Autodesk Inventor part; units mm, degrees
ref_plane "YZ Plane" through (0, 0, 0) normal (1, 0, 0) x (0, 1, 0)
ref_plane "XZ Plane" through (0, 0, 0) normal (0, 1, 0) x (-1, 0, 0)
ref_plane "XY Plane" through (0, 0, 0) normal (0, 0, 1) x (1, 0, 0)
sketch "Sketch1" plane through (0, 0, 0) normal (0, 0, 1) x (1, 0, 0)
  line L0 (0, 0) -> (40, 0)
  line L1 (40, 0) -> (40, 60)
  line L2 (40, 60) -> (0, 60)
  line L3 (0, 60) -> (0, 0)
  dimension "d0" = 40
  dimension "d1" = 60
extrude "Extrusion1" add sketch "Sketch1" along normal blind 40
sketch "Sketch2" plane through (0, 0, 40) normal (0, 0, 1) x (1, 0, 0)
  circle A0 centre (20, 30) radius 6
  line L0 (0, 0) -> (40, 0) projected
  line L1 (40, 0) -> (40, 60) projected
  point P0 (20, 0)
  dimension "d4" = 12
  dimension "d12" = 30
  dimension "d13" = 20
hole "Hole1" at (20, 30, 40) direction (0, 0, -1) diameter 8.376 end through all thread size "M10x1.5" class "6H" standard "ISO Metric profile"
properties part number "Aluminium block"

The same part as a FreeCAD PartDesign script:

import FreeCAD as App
import Part
import Sketcher
Q = App.Units.Quantity


def add_polygon(sketch, points):
    """Adds a closed chain of lines whose ends are joined by coincident constraints."""
    first, n = sketch.GeometryCount, len(points)
    for a, b in zip(points, points[1:] + points[:1]):
        sketch.addGeometry(Part.LineSegment(App.Vector(*a, 0), App.Vector(*b, 0)), False)
    for i in range(n):
        sketch.addConstraint(Sketcher.Constraint("Coincident", first + i, 2, first + (i + 1) % n, 1))

doc = App.newDocument("Part")
body = doc.addObject("PartDesign::Body", "Body")

sketch1 = body.newObject("Sketcher::SketchObject", "Sketch")
sketch1.AttachmentSupport = (doc.getObject("XY_Plane"), [""])
sketch1.MapMode = "FlatFace"
add_polygon(sketch1, [(0, 60), (0, 0), (40, 0), (40, 60)])
sketch1.addConstraint(Sketcher.Constraint("Vertical", 0))
sketch1.addConstraint(Sketcher.Constraint("Horizontal", 1))
sketch1.addConstraint(Sketcher.Constraint("Vertical", 2))
sketch1.addConstraint(Sketcher.Constraint("Horizontal", 3))
sketch1.addConstraint(Sketcher.Constraint("Coincident", 0, 2, -1, 1))
sketch1.addConstraint(Sketcher.Constraint("DistanceX", 1, 1, 1, 2, Q("40 mm")))
sketch1.addConstraint(Sketcher.Constraint("DistanceY", 0, 2, 0, 1, Q("60 mm")))
pad1 = body.newObject("PartDesign::Pad", "Pad")
pad1.Profile = sketch1
pad1.Length = 40

sketch2 = body.newObject("Sketcher::SketchObject", "Sketch001")
sketch2.AttachmentSupport = (doc.getObject("XY_Plane"), [""])
sketch2.MapMode = "FlatFace"
sketch2.AttachmentOffset = App.Placement(App.Vector(0, 0, 40), App.Rotation())
sketch2.addGeometry(Part.Circle(App.Vector(20, 30, 0), App.Vector(0, 0, 1), 4.2), False)
sketch2.addConstraint(Sketcher.Constraint("Diameter", 0, Q("8.376 mm")))
sketch2.addConstraint(Sketcher.Constraint("DistanceX", -1, 1, 0, 3, Q("20 mm")))
sketch2.addConstraint(Sketcher.Constraint("DistanceY", -1, 1, 0, 3, Q("30 mm")))
doc.recompute()
hole = body.newObject("PartDesign::Hole", "Hole")
hole.Profile = sketch2
hole.ThreadType = "None"
hole.Diameter = 8.376
hole.DepthType = "ThroughAll"

doc.recompute()
